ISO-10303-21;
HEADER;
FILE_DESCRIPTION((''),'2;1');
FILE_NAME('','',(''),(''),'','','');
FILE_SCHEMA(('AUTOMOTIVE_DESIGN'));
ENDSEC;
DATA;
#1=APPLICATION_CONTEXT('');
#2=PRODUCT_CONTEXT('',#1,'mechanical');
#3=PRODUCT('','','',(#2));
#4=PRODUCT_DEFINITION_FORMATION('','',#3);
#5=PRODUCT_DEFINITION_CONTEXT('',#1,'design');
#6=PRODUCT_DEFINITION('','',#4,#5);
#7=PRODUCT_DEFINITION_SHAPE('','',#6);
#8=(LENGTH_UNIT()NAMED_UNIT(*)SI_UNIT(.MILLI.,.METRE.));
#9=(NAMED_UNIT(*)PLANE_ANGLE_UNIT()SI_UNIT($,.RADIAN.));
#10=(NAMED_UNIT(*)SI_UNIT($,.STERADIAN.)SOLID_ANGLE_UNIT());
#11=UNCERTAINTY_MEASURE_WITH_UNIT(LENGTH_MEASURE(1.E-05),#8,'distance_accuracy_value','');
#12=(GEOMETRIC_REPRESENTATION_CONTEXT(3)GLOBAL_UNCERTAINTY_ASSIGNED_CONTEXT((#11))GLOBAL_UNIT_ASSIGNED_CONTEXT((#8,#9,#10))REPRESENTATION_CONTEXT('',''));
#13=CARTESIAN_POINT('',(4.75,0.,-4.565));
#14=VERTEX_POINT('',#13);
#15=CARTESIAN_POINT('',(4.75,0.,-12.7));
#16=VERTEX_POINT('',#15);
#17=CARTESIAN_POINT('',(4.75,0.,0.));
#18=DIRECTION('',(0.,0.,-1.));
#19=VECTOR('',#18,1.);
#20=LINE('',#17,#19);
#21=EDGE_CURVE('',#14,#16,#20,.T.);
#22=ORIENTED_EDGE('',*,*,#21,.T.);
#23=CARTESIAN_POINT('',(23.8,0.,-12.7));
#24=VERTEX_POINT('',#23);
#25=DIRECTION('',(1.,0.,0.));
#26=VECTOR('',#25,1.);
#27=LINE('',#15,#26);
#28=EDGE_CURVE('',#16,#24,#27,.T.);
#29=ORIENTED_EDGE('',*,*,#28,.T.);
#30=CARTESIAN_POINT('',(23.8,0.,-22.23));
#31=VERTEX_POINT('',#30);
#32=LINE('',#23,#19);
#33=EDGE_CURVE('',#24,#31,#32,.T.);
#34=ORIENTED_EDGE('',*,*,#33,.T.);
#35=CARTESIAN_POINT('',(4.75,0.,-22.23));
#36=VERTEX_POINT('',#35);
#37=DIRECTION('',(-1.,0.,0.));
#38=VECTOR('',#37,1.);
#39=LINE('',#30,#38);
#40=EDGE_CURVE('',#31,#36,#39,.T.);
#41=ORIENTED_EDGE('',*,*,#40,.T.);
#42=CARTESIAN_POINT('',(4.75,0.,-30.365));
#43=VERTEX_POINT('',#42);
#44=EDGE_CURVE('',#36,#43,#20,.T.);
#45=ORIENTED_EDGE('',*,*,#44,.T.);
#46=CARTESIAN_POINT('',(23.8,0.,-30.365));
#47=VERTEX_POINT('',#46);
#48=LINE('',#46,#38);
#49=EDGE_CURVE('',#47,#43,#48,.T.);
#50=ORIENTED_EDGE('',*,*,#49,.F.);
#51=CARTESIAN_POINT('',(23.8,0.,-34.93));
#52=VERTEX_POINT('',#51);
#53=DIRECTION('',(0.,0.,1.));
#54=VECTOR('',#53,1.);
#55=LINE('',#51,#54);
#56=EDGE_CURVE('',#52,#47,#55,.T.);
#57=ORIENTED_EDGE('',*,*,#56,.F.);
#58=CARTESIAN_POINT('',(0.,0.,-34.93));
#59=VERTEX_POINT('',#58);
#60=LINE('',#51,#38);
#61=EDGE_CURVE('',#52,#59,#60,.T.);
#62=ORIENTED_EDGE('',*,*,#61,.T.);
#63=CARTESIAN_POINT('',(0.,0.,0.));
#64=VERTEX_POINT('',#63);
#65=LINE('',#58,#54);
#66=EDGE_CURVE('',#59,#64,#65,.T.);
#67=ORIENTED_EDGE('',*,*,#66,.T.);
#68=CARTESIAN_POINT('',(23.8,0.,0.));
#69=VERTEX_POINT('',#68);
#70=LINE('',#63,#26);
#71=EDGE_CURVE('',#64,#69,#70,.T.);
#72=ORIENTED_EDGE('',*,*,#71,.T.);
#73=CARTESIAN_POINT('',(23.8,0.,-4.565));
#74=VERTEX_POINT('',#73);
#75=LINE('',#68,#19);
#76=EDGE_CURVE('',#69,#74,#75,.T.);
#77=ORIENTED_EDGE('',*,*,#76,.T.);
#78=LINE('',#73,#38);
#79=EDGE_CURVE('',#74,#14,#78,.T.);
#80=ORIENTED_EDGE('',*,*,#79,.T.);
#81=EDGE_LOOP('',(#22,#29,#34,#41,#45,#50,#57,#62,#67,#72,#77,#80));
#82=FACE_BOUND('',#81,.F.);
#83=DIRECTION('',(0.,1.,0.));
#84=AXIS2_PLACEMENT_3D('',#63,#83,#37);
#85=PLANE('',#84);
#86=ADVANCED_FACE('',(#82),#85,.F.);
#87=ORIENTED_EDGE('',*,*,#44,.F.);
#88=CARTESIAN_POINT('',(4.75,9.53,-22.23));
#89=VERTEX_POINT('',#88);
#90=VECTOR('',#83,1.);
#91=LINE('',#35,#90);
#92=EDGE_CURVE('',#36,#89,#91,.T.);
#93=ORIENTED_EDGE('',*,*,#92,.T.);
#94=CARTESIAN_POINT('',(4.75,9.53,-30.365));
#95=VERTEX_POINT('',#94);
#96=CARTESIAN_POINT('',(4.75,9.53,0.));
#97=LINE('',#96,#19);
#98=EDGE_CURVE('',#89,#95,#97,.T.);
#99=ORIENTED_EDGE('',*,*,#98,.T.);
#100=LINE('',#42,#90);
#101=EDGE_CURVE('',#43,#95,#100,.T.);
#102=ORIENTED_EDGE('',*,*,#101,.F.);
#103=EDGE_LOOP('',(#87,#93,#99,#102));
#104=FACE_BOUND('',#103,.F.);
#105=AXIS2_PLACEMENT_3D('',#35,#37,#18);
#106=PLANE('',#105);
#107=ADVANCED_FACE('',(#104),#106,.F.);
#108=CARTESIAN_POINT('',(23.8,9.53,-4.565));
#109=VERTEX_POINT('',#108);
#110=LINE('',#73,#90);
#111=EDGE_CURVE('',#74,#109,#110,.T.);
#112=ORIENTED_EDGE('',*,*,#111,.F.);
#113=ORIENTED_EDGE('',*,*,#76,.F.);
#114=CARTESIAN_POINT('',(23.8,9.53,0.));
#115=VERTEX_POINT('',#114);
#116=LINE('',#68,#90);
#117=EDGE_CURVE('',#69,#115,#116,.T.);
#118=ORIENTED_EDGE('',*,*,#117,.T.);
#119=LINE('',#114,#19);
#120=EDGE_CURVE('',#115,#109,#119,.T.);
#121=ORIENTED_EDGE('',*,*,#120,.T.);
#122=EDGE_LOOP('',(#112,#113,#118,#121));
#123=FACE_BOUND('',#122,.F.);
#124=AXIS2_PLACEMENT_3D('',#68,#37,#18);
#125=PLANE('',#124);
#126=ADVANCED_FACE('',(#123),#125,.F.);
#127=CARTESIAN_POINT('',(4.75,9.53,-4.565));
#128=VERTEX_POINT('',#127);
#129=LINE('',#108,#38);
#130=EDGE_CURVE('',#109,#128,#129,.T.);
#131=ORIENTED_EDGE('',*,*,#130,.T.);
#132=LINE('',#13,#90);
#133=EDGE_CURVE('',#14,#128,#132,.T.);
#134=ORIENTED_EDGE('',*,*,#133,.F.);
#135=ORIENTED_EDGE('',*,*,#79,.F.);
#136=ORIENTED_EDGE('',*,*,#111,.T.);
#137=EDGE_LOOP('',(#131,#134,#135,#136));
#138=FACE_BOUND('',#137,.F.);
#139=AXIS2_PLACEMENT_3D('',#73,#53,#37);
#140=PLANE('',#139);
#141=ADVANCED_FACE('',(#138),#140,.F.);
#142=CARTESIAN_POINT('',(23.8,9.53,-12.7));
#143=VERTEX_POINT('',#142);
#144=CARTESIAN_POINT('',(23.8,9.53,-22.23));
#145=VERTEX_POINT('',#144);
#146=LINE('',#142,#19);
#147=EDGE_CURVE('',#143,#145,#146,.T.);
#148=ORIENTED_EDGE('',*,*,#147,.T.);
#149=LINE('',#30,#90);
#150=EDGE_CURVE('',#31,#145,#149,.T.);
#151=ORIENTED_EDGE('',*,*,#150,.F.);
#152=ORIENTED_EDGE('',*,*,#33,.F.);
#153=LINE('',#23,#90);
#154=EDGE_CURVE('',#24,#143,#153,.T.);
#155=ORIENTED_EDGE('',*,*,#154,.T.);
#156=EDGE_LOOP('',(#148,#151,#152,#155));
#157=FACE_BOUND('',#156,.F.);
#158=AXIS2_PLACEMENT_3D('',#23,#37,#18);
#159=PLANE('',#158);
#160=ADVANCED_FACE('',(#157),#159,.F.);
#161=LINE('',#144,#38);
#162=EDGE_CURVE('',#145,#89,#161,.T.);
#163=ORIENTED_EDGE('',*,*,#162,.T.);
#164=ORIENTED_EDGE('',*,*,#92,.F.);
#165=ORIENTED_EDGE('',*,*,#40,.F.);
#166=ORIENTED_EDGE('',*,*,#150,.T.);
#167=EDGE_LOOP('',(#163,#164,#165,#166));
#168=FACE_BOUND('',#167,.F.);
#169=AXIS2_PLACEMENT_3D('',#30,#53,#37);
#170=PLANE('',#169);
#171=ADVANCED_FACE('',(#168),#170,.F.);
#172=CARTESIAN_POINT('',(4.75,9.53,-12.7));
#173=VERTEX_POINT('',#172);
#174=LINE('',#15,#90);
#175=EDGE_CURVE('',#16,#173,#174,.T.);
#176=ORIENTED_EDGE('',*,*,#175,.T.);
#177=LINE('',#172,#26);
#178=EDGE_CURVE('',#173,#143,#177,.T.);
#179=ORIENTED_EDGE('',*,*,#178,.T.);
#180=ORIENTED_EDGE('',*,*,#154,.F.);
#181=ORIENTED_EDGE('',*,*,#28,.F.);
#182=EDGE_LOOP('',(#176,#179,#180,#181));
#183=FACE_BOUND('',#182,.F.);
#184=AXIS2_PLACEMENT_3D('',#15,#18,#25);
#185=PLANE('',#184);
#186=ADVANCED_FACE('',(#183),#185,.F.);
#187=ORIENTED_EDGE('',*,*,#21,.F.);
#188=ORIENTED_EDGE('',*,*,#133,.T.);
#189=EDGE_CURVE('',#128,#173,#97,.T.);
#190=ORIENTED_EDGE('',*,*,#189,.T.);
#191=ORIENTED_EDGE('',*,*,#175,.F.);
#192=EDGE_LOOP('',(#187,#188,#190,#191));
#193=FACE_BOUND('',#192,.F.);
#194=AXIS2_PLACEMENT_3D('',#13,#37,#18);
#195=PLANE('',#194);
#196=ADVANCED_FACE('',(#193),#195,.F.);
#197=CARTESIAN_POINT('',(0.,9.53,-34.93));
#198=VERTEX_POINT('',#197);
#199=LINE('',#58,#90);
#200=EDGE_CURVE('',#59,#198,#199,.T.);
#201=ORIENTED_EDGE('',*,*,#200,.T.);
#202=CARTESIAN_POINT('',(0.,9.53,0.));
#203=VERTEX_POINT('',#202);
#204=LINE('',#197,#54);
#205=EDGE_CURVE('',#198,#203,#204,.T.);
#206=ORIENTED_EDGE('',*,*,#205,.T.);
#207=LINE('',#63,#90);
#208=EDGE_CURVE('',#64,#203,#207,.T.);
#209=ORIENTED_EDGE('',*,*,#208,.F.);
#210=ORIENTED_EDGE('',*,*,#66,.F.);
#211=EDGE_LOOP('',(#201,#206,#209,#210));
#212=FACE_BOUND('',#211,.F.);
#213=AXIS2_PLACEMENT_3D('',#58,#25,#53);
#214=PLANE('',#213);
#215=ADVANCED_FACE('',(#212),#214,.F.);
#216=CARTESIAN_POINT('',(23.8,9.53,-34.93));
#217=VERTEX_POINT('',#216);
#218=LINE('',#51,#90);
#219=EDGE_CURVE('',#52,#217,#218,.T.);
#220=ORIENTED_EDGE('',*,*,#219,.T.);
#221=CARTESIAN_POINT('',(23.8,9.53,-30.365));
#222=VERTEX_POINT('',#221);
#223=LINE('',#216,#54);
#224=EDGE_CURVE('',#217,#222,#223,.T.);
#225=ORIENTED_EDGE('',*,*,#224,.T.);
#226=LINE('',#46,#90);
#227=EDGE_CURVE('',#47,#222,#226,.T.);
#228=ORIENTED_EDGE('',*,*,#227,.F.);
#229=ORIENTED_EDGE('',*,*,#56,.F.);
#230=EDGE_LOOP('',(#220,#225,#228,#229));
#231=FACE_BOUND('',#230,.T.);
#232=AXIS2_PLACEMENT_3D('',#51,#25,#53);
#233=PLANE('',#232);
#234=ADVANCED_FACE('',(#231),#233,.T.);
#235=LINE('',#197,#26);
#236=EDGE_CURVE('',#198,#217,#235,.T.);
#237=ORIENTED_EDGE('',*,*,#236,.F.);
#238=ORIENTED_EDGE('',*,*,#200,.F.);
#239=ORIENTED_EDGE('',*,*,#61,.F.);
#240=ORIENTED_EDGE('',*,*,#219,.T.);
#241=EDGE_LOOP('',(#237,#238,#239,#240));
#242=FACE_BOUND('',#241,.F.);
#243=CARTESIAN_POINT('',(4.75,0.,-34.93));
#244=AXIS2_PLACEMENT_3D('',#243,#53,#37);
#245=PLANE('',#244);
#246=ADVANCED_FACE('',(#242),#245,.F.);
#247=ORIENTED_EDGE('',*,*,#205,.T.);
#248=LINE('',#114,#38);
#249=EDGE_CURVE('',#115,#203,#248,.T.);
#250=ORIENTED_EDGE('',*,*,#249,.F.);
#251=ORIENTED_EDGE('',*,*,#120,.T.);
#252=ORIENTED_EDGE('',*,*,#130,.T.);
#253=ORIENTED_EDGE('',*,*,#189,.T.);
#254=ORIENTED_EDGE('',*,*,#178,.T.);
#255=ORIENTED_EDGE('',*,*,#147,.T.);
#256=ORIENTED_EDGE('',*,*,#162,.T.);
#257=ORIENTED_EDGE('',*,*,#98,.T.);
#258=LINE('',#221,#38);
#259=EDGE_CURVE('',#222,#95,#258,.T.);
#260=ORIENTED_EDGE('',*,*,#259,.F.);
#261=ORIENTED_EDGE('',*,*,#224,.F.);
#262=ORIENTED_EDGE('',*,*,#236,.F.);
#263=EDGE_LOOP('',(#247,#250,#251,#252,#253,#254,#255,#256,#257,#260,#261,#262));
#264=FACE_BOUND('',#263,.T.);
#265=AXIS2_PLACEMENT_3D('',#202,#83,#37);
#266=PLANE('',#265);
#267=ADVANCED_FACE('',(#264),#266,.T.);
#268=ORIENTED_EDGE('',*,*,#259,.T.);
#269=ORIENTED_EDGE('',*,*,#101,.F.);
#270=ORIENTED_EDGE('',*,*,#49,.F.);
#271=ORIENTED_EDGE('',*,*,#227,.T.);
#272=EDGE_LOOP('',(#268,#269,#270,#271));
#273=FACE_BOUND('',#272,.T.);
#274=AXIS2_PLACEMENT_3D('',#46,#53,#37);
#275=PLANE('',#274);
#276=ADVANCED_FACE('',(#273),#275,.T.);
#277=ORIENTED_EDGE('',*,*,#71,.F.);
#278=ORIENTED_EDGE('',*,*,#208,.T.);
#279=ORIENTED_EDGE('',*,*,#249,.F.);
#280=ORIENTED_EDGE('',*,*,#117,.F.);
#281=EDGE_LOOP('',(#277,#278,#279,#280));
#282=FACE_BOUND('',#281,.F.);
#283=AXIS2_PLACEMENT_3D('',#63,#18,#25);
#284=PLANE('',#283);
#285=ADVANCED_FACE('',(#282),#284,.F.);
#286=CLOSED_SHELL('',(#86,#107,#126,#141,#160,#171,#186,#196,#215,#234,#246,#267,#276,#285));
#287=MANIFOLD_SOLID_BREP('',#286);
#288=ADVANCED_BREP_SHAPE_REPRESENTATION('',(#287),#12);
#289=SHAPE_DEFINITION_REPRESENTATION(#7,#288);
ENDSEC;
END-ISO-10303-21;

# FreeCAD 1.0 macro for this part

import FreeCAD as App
import Part
import Sketcher
Q = App.Units.Quantity


def add_polygon(sketch, points):
    """Adds a closed chain of lines whose ends are joined by coincident constraints."""
    first, n = sketch.GeometryCount, len(points)
    for a, b in zip(points, points[1:] + points[:1]):
        sketch.addGeometry(Part.LineSegment(App.Vector(*a, 0), App.Vector(*b, 0)), False)
    for i in range(n):
        sketch.addConstraint(Sketcher.Constraint("Coincident", first + i, 2, first + (i + 1) % n, 1))

doc = App.newDocument("Part")
body = doc.addObject("PartDesign::Body", "Body")

# Sketch on XZ plane
sketch1 = doc.addObject("Sketcher::SketchObject", "Sketch")
body.addObject(sketch1)
sketch1.AttachmentSupport = (doc.XZ_Plane, [""])
sketch1.MapMode = "FlatFace"
add_polygon(sketch1, [(0, -34.9), (0, 0), (23.8, 0), (23.8, -4.6), (4.8, -4.6), (4.8, -12.7), (23.8, -12.7), (23.8, -22.2), (4.8, -22.2), (4.8, -30.4), (23.8, -30.4), (23.8, -34.9)])  # lines 0-11
sketch1.addConstraint([
    Sketcher.Constraint("Vertical", 0),
    Sketcher.Constraint("Horizontal", 1),
    Sketcher.Constraint("Vertical", 2),
    Sketcher.Constraint("Horizontal", 3),
    Sketcher.Constraint("Vertical", 4),
    Sketcher.Constraint("Horizontal", 5),
    Sketcher.Constraint("Vertical", 6),
    Sketcher.Constraint("Horizontal", 7),
    Sketcher.Constraint("Vertical", 8),
    Sketcher.Constraint("Horizontal", 9),
    Sketcher.Constraint("Vertical", 10),
    Sketcher.Constraint("Horizontal", 11),
    Sketcher.Constraint("Coincident", 0, 2, -1, 1),
    Sketcher.Constraint("Vertical", 2, 2, 5, 2),
    Sketcher.Constraint("Vertical", 4, 2, 7, 2),
    Sketcher.Constraint("Vertical", 6, 2, 9, 2),
    Sketcher.Constraint("Equal", 4, 8),
    Sketcher.Constraint("Equal", 2, 10),
    Sketcher.Constraint("DistanceX", 3, 2, 3, 1, Q("0.75 in")),
    Sketcher.Constraint("DistanceX", 1, 1, 1, 2, Q("0.937 in")),
    Sketcher.Constraint("DistanceY", 0, 1, 0, 2, Q("1.3752 in")),
    Sketcher.Constraint("DistanceY", 6, 2, 6, 1, Q("0.3752 in")),
    Sketcher.Constraint("DistanceY", 8, 2, 3, 2, 25.8),
])
pad1 = doc.addObject("PartDesign::Pad", "Pad")
body.addObject(pad1)
pad1.Profile = sketch1
pad1.Length = Q("0.3751969 in")
pad1.Reversed = True

doc.recompute()
